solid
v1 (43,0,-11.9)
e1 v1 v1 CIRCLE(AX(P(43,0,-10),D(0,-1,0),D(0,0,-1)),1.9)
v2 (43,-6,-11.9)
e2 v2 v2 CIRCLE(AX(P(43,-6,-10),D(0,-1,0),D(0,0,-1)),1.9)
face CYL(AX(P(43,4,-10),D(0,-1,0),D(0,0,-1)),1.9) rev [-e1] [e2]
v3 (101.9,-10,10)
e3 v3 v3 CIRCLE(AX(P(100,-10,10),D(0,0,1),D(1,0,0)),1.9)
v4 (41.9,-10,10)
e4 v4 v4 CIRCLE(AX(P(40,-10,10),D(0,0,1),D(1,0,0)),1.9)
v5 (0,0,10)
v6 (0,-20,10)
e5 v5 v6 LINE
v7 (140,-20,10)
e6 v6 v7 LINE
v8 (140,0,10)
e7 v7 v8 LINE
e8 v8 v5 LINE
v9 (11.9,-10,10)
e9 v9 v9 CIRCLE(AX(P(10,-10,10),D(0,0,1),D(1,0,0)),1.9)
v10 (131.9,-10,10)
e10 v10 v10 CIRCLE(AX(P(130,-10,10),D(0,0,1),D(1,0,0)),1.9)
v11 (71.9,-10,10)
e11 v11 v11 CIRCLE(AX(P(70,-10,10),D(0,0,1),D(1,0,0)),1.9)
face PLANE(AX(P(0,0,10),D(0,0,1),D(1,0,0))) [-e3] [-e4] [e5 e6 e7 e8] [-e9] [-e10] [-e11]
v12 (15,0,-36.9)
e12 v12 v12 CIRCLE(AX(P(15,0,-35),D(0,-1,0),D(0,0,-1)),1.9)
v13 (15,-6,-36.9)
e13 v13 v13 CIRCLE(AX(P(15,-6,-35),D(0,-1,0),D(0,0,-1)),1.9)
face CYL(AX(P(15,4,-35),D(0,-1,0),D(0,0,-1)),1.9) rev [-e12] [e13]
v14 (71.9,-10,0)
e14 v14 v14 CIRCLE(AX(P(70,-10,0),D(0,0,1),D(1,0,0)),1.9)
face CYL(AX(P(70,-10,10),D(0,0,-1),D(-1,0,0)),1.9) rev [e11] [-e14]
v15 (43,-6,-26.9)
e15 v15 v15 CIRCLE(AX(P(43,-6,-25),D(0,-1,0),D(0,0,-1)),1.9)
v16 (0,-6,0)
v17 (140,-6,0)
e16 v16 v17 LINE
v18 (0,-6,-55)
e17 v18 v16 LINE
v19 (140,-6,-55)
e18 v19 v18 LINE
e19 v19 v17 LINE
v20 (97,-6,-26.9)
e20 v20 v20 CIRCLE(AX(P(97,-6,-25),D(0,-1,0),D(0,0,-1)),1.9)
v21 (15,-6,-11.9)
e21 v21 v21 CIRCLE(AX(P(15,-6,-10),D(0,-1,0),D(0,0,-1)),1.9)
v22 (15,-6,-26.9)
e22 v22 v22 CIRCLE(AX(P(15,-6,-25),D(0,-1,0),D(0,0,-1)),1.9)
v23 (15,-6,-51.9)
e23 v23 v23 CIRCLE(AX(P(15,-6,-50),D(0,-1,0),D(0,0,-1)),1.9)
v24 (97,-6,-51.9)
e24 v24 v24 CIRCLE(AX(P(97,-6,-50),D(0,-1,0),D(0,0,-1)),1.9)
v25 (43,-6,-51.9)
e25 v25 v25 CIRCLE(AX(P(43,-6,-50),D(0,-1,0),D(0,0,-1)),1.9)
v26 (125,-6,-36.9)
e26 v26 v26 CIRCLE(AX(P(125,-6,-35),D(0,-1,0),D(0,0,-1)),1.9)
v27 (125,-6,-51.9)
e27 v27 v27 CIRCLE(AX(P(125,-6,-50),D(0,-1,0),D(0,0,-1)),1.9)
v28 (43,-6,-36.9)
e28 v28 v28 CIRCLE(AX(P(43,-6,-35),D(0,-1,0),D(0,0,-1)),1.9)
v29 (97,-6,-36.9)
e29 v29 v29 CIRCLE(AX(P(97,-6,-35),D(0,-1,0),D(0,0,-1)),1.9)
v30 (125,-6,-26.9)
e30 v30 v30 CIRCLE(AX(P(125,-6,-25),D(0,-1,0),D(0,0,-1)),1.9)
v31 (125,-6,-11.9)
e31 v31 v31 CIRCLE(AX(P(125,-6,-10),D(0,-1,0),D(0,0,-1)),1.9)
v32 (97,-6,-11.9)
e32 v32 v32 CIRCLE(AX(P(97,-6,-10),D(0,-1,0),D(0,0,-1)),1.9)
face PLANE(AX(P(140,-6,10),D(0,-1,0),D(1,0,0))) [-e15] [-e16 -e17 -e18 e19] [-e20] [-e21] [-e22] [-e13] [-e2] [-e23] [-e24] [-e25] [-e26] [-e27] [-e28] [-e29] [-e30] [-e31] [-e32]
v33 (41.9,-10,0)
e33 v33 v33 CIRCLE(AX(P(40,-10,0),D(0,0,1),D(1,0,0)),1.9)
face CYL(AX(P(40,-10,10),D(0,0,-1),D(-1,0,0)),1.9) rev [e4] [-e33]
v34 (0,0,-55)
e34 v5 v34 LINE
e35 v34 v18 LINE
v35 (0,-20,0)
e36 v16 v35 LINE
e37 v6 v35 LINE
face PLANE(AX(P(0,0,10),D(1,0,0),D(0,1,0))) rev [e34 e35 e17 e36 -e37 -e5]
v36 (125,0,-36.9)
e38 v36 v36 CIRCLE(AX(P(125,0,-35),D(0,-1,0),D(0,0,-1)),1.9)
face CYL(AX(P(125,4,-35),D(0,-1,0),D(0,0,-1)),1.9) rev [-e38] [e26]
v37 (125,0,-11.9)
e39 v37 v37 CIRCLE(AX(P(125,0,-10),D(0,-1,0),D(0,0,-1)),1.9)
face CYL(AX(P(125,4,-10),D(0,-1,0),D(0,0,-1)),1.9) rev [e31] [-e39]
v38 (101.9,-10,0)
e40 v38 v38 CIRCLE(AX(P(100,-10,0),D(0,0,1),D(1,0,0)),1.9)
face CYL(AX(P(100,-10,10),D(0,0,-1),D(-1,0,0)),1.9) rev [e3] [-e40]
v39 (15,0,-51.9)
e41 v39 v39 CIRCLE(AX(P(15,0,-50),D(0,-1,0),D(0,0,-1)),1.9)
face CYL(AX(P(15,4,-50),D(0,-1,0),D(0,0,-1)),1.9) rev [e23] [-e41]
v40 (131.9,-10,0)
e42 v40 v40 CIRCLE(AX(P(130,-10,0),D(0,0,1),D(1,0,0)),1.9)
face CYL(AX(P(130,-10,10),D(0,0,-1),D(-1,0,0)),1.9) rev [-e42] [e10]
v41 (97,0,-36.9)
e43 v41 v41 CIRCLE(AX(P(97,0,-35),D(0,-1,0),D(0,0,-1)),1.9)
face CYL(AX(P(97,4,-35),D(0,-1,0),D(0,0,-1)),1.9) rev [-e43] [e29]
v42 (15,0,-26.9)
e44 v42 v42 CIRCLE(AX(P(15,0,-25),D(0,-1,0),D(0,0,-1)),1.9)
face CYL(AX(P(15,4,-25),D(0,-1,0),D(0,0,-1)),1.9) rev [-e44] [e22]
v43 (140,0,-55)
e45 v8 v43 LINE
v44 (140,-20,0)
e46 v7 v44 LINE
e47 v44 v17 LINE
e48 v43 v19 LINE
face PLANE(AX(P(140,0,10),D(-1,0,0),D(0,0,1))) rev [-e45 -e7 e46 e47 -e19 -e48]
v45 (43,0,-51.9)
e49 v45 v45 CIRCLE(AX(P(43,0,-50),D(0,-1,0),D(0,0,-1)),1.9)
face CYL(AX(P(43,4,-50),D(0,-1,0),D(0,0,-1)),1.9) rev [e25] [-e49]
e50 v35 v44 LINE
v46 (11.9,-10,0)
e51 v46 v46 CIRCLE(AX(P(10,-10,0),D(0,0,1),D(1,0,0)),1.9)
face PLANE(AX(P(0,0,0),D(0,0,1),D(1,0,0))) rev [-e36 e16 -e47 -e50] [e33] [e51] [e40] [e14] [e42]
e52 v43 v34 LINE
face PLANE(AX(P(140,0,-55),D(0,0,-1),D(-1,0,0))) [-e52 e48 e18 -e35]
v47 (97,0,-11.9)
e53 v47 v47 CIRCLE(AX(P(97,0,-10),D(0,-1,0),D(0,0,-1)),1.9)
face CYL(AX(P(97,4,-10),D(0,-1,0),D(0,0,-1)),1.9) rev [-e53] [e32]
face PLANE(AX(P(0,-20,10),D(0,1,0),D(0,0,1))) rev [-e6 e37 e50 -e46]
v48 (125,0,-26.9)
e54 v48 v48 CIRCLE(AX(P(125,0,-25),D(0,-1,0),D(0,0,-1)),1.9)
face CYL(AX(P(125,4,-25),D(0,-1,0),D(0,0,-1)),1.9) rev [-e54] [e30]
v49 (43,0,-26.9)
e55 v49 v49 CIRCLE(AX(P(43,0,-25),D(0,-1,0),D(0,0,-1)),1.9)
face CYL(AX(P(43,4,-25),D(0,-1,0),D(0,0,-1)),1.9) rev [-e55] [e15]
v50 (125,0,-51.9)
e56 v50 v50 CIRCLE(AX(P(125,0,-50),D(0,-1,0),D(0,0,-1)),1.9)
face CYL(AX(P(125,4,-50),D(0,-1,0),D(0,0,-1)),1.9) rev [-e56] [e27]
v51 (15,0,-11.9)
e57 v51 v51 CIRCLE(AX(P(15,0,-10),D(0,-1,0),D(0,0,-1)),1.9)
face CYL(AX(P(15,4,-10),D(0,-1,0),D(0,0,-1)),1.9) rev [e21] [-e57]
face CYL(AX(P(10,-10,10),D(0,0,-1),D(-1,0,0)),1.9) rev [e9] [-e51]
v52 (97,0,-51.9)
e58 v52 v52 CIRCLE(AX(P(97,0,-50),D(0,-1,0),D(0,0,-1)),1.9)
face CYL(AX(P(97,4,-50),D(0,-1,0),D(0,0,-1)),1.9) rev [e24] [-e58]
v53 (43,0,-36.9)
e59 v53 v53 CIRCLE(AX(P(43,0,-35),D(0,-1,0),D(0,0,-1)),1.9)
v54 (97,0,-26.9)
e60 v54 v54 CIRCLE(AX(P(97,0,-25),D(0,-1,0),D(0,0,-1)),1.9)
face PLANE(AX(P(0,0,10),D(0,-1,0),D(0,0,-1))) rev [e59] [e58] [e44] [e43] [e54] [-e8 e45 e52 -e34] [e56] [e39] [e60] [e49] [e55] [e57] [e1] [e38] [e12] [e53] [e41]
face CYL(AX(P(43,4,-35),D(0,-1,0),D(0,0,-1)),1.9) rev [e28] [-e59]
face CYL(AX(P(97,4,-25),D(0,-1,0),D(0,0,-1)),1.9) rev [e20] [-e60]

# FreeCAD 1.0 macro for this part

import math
import FreeCAD as App
import Part
import Sketcher

V = App.Vector


def add_polygon(sketch, points):
    """Adds a closed chain of lines whose ends are joined by coincident constraints."""
    first, n = sketch.GeometryCount, len(points)
    for a, b in zip(points, points[1:] + points[:1]):
        sketch.addGeometry(Part.LineSegment(App.Vector(*a, 0), App.Vector(*b, 0)), False)
    for i in range(n):
        sketch.addConstraint(Sketcher.Constraint("Coincident", first + i, 2, first + (i + 1) % n, 1))

doc = App.newDocument("Part")
body = doc.addObject("PartDesign::Body", "Body")

# Sketch on XY plane
sketch1 = doc.addObject("Sketcher::SketchObject", "Sketch")
body.addObject(sketch1)
sketch1.AttachmentSupport = (doc.XY_Plane, [""])
sketch1.MapMode = "FlatFace"
add_polygon(sketch1, [(0, 0), (0, -20), (140, -20), (140, 0)])  # lines 0-3
sketch1.addGeometry(Part.Circle(V(10, -10, 0), V(0, 0, 1), 1.9), False)  # 4
sketch1.addGeometry(Part.Circle(V(40, -10, 0), V(0, 0, 1), 1.9), False)  # 5
sketch1.addGeometry(Part.Circle(V(70, -10, 0), V(0, 0, 1), 1.9), False)  # 6
sketch1.addGeometry(Part.Circle(V(100, -10, 0), V(0, 0, 1), 1.9), False)  # 7
sketch1.addGeometry(Part.Circle(V(130, -10, 0), V(0, 0, 1), 1.9), False)  # 8
sketch1.addConstraint([
    Sketcher.Constraint("Vertical", 0),
    Sketcher.Constraint("Horizontal", 1),
    Sketcher.Constraint("Vertical", 2),
    Sketcher.Constraint("Horizontal", 3),
    Sketcher.Constraint("Coincident", 3, 2, -1, 1),
    Sketcher.Constraint("Equal", 4, 5),
    Sketcher.Constraint("Equal", 5, 6),
    Sketcher.Constraint("Equal", 6, 7),
    Sketcher.Constraint("Equal", 7, 8),
    Sketcher.Constraint("Horizontal", 4, 3, 5, 3),
    Sketcher.Constraint("Horizontal", 5, 3, 6, 3),
    Sketcher.Constraint("Horizontal", 6, 3, 7, 3),
    Sketcher.Constraint("Horizontal", 7, 3, 8, 3),
    Sketcher.Constraint("Diameter", 4, 3.8),
    Sketcher.Constraint("DistanceX", 1, 1, 1, 2, 140.0),
    Sketcher.Constraint("DistanceY", 0, 2, 0, 1, 20.0),
    Sketcher.Constraint("DistanceX", -1, 1, 4, 3, 10.0),
    Sketcher.Constraint("DistanceY", 4, 3, -1, 1, 10.0),
    Sketcher.Constraint("DistanceX", -1, 1, 5, 3, 40.0),
    Sketcher.Constraint("DistanceX", -1, 1, 6, 3, 70.0),
    Sketcher.Constraint("DistanceX", -1, 1, 7, 3, 100.0),
    Sketcher.Constraint("DistanceX", -1, 1, 8, 3, 130.0),
])
pad1 = doc.addObject("PartDesign::Pad", "Pad")
body.addObject(pad1)
pad1.Profile = sketch1
pad1.Length = 10

# Sketch on YZ plane
sketch2 = doc.addObject("Sketcher::SketchObject", "Sketch001")
body.addObject(sketch2)
sketch2.AttachmentSupport = (doc.YZ_Plane, [""])
sketch2.MapMode = "FlatFace"
add_polygon(sketch2, [(0, -55), (-6, -55), (-6, 10), (0, 10)])  # lines 0-3
sketch2.addConstraint([
    Sketcher.Constraint("Horizontal", 0),
    Sketcher.Constraint("Vertical", 1),
    Sketcher.Constraint("Horizontal", 2),
    Sketcher.Constraint("Vertical", 3),
    Sketcher.Constraint("PointOnObject", 2, 2, -2),
    Sketcher.Constraint("DistanceX", 0, 2, 0, 1, 6.0),
    Sketcher.Constraint("DistanceY", 1, 1, 1, 2, 65.0),
    Sketcher.Constraint("DistanceY", 0, 2, -1, 1, 55.0),
])
pad2 = doc.addObject("PartDesign::Pad", "Pad001")
body.addObject(pad2)
pad2.Profile = sketch2
pad2.Length = 140

# Sketch on XZ plane
sketch3 = doc.addObject("Sketcher::SketchObject", "Sketch002")
body.addObject(sketch3)
sketch3.AttachmentSupport = (doc.XZ_Plane, [""])
sketch3.MapMode = "FlatFace"
sketch3.AttachmentOffset = App.Placement(V(0, 0, 6), App.Rotation())
sketch3.addGeometry([
    Part.ArcOfCircle(Part.Circle(V(43, -35, 0), V(0, 0, 1), 1.9), math.radians(0), math.radians(180)),  # 0
    Part.ArcOfCircle(Part.Circle(V(43, -35, 0), V(0, 0, 1), 1.9), math.radians(-180), math.radians(-90)),  # 1
    Part.ArcOfCircle(Part.Circle(V(43, -35, 0), V(0, 0, 1), 1.9), math.radians(-90), math.radians(0)),  # 2
    Part.ArcOfCircle(Part.Circle(V(43, -50, 0), V(0, 0, 1), 1.9), math.radians(0), math.radians(90)),  # 3
    Part.ArcOfCircle(Part.Circle(V(43, -50, 0), V(0, 0, 1), 1.9), math.radians(90), math.radians(180)),  # 4
    Part.ArcOfCircle(Part.Circle(V(43, -50, 0), V(0, 0, 1), 1.9), math.radians(180), math.radians(360)),  # 5
    Part.ArcOfCircle(Part.Circle(V(15, -50, 0), V(0, 0, 1), 1.9), math.radians(0), math.radians(90)),  # 6
    Part.ArcOfCircle(Part.Circle(V(15, -50, 0), V(0, 0, 1), 1.9), math.radians(90), math.radians(360)),  # 7
    Part.ArcOfCircle(Part.Circle(V(15, -35, 0), V(0, 0, 1), 1.9), math.radians(0), math.radians(270)),  # 8
    Part.ArcOfCircle(Part.Circle(V(15, -35, 0), V(0, 0, 1), 1.9), math.radians(-90), math.radians(0)),  # 9
    Part.Circle(V(15, -10, 0), V(0, 0, 1), 1.9),  # 10
    Part.Circle(V(15, -25, 0), V(0, 0, 1), 1.9),  # 11
    Part.Circle(V(43, -25, 0), V(0, 0, 1), 1.9),  # 12
    Part.Circle(V(43, -10, 0), V(0, 0, 1), 1.9),  # 13
    Part.Circle(V(97, -10, 0), V(0, 0, 1), 1.9),  # 14
    Part.Circle(V(97, -35, 0), V(0, 0, 1), 1.9),  # 15
    Part.Circle(V(97, -50, 0), V(0, 0, 1), 1.9),  # 16
    Part.Circle(V(125, -50, 0), V(0, 0, 1), 1.9),  # 17
    Part.Circle(V(125, -35, 0), V(0, 0, 1), 1.9),  # 18
    Part.Circle(V(125, -25, 0), V(0, 0, 1), 1.9),  # 19
    Part.Circle(V(125, -10, 0), V(0, 0, 1), 1.9),  # 20
    Part.Circle(V(97, -25, 0), V(0, 0, 1), 1.9),  # 21
], False)
sketch3.addConstraint([
    Sketcher.Constraint("Tangent", 0, 2, 1, 1),
    Sketcher.Constraint("Tangent", 1, 2, 2, 1),
    Sketcher.Constraint("Tangent", 2, 2, 0, 1),
    Sketcher.Constraint("Tangent", 3, 2, 4, 1),
    Sketcher.Constraint("Tangent", 4, 2, 5, 1),
    Sketcher.Constraint("Tangent", 5, 2, 3, 1),
    Sketcher.Constraint("Tangent", 6, 1, 7, 2),
    Sketcher.Constraint("Coincident", 7, 1, 6, 2),
    Sketcher.Constraint("Tangent", 8, 1, 9, 2),
    Sketcher.Constraint("Coincident", 9, 1, 8, 2),
    Sketcher.Constraint("Equal", 2, 3),
    Sketcher.Constraint("Equal", 5, 6),
    Sketcher.Constraint("Equal", 7, 8),
    Sketcher.Constraint("Equal", 9, 10),
    Sketcher.Constraint("Equal", 10, 11),
    Sketcher.Constraint("Equal", 11, 12),
    Sketcher.Constraint("Equal", 12, 13),
    Sketcher.Constraint("Equal", 13, 14),
    Sketcher.Constraint("Equal", 14, 15),
    Sketcher.Constraint("Equal", 15, 16),
    Sketcher.Constraint("Equal", 16, 17),
    Sketcher.Constraint("Equal", 17, 18),
    Sketcher.Constraint("Equal", 18, 19),
    Sketcher.Constraint("Equal", 19, 20),
    Sketcher.Constraint("Equal", 20, 21),
    Sketcher.Constraint("Horizontal", 5, 3, 6, 3),
    Sketcher.Constraint("Horizontal", 2, 3, 8, 3),
    Sketcher.Constraint("Horizontal", 11, 3, 12, 3),
    Sketcher.Constraint("Horizontal", 10, 3, 13, 3),
    Sketcher.Constraint("Horizontal", 13, 3, 14, 3),
    Sketcher.Constraint("Horizontal", 9, 3, 15, 3),
    Sketcher.Constraint("Horizontal", 7, 3, 16, 3),
    Sketcher.Constraint("Horizontal", 16, 3, 17, 3),
    Sketcher.Constraint("Horizontal", 15, 3, 18, 3),
    Sketcher.Constraint("Horizontal", 12, 3, 19, 3),
    Sketcher.Constraint("Horizontal", 14, 3, 20, 3),
    Sketcher.Constraint("Horizontal", 19, 3, 21, 3),
    Sketcher.Constraint("Horizontal", 18, 3, 0, 2),
    Sketcher.Constraint("Horizontal", 0, 2, 2, 2),
    Sketcher.Constraint("Horizontal", 17, 3, 4, 2),
    Sketcher.Constraint("Horizontal", 4, 2, 5, 2),
    Sketcher.Constraint("Horizontal", 5, 2, 6, 1),
    Sketcher.Constraint("Horizontal", 2, 2, 8, 1),
    Sketcher.Constraint("Vertical", 2, 3, 3, 3),
    Sketcher.Constraint("Vertical", 7, 3, 8, 3),
    Sketcher.Constraint("Vertical", 9, 3, 10, 3),
    Sketcher.Constraint("Vertical", 10, 3, 11, 3),
    Sketcher.Constraint("Vertical", 5, 3, 12, 3),
    Sketcher.Constraint("Vertical", 12, 3, 13, 3),
    Sketcher.Constraint("Vertical", 14, 3, 15, 3),
    Sketcher.Constraint("Vertical", 15, 3, 16, 3),
    Sketcher.Constraint("Vertical", 17, 3, 18, 3),
    Sketcher.Constraint("Vertical", 18, 3, 19, 3),
    Sketcher.Constraint("Vertical", 19, 3, 20, 3),
    Sketcher.Constraint("Vertical", 16, 3, 21, 3),
    Sketcher.Constraint("Vertical", 13, 3, 1, 2),
    Sketcher.Constraint("Vertical", 1, 2, 3, 2),
    Sketcher.Constraint("Vertical", 11, 3, 7, 1),
    Sketcher.Constraint("Vertical", 7, 1, 9, 1),
    Sketcher.Constraint("Diameter", 10, 3.8),
    Sketcher.Constraint("DistanceX", -1, 1, 0, 3, 43.0),
    Sketcher.Constraint("DistanceY", 0, 3, -1, 1, 35.0),
    Sketcher.Constraint("DistanceY", 3, 3, -1, 1, 50.0),
    Sketcher.Constraint("DistanceX", -1, 1, 6, 3, 15.0),
    Sketcher.Constraint("DistanceY", 10, 3, -1, 1, 10.0),
    Sketcher.Constraint("DistanceY", 11, 3, -1, 1, 25.0),
    Sketcher.Constraint("DistanceX", -1, 1, 14, 3, 97.0),
    Sketcher.Constraint("DistanceX", -1, 1, 17, 3, 125.0),
])
pocket1 = doc.addObject("PartDesign::Pocket", "Pocket")
body.addObject(pocket1)
pocket1.Profile = sketch3
pocket1.Length = 10

doc.recompute()
